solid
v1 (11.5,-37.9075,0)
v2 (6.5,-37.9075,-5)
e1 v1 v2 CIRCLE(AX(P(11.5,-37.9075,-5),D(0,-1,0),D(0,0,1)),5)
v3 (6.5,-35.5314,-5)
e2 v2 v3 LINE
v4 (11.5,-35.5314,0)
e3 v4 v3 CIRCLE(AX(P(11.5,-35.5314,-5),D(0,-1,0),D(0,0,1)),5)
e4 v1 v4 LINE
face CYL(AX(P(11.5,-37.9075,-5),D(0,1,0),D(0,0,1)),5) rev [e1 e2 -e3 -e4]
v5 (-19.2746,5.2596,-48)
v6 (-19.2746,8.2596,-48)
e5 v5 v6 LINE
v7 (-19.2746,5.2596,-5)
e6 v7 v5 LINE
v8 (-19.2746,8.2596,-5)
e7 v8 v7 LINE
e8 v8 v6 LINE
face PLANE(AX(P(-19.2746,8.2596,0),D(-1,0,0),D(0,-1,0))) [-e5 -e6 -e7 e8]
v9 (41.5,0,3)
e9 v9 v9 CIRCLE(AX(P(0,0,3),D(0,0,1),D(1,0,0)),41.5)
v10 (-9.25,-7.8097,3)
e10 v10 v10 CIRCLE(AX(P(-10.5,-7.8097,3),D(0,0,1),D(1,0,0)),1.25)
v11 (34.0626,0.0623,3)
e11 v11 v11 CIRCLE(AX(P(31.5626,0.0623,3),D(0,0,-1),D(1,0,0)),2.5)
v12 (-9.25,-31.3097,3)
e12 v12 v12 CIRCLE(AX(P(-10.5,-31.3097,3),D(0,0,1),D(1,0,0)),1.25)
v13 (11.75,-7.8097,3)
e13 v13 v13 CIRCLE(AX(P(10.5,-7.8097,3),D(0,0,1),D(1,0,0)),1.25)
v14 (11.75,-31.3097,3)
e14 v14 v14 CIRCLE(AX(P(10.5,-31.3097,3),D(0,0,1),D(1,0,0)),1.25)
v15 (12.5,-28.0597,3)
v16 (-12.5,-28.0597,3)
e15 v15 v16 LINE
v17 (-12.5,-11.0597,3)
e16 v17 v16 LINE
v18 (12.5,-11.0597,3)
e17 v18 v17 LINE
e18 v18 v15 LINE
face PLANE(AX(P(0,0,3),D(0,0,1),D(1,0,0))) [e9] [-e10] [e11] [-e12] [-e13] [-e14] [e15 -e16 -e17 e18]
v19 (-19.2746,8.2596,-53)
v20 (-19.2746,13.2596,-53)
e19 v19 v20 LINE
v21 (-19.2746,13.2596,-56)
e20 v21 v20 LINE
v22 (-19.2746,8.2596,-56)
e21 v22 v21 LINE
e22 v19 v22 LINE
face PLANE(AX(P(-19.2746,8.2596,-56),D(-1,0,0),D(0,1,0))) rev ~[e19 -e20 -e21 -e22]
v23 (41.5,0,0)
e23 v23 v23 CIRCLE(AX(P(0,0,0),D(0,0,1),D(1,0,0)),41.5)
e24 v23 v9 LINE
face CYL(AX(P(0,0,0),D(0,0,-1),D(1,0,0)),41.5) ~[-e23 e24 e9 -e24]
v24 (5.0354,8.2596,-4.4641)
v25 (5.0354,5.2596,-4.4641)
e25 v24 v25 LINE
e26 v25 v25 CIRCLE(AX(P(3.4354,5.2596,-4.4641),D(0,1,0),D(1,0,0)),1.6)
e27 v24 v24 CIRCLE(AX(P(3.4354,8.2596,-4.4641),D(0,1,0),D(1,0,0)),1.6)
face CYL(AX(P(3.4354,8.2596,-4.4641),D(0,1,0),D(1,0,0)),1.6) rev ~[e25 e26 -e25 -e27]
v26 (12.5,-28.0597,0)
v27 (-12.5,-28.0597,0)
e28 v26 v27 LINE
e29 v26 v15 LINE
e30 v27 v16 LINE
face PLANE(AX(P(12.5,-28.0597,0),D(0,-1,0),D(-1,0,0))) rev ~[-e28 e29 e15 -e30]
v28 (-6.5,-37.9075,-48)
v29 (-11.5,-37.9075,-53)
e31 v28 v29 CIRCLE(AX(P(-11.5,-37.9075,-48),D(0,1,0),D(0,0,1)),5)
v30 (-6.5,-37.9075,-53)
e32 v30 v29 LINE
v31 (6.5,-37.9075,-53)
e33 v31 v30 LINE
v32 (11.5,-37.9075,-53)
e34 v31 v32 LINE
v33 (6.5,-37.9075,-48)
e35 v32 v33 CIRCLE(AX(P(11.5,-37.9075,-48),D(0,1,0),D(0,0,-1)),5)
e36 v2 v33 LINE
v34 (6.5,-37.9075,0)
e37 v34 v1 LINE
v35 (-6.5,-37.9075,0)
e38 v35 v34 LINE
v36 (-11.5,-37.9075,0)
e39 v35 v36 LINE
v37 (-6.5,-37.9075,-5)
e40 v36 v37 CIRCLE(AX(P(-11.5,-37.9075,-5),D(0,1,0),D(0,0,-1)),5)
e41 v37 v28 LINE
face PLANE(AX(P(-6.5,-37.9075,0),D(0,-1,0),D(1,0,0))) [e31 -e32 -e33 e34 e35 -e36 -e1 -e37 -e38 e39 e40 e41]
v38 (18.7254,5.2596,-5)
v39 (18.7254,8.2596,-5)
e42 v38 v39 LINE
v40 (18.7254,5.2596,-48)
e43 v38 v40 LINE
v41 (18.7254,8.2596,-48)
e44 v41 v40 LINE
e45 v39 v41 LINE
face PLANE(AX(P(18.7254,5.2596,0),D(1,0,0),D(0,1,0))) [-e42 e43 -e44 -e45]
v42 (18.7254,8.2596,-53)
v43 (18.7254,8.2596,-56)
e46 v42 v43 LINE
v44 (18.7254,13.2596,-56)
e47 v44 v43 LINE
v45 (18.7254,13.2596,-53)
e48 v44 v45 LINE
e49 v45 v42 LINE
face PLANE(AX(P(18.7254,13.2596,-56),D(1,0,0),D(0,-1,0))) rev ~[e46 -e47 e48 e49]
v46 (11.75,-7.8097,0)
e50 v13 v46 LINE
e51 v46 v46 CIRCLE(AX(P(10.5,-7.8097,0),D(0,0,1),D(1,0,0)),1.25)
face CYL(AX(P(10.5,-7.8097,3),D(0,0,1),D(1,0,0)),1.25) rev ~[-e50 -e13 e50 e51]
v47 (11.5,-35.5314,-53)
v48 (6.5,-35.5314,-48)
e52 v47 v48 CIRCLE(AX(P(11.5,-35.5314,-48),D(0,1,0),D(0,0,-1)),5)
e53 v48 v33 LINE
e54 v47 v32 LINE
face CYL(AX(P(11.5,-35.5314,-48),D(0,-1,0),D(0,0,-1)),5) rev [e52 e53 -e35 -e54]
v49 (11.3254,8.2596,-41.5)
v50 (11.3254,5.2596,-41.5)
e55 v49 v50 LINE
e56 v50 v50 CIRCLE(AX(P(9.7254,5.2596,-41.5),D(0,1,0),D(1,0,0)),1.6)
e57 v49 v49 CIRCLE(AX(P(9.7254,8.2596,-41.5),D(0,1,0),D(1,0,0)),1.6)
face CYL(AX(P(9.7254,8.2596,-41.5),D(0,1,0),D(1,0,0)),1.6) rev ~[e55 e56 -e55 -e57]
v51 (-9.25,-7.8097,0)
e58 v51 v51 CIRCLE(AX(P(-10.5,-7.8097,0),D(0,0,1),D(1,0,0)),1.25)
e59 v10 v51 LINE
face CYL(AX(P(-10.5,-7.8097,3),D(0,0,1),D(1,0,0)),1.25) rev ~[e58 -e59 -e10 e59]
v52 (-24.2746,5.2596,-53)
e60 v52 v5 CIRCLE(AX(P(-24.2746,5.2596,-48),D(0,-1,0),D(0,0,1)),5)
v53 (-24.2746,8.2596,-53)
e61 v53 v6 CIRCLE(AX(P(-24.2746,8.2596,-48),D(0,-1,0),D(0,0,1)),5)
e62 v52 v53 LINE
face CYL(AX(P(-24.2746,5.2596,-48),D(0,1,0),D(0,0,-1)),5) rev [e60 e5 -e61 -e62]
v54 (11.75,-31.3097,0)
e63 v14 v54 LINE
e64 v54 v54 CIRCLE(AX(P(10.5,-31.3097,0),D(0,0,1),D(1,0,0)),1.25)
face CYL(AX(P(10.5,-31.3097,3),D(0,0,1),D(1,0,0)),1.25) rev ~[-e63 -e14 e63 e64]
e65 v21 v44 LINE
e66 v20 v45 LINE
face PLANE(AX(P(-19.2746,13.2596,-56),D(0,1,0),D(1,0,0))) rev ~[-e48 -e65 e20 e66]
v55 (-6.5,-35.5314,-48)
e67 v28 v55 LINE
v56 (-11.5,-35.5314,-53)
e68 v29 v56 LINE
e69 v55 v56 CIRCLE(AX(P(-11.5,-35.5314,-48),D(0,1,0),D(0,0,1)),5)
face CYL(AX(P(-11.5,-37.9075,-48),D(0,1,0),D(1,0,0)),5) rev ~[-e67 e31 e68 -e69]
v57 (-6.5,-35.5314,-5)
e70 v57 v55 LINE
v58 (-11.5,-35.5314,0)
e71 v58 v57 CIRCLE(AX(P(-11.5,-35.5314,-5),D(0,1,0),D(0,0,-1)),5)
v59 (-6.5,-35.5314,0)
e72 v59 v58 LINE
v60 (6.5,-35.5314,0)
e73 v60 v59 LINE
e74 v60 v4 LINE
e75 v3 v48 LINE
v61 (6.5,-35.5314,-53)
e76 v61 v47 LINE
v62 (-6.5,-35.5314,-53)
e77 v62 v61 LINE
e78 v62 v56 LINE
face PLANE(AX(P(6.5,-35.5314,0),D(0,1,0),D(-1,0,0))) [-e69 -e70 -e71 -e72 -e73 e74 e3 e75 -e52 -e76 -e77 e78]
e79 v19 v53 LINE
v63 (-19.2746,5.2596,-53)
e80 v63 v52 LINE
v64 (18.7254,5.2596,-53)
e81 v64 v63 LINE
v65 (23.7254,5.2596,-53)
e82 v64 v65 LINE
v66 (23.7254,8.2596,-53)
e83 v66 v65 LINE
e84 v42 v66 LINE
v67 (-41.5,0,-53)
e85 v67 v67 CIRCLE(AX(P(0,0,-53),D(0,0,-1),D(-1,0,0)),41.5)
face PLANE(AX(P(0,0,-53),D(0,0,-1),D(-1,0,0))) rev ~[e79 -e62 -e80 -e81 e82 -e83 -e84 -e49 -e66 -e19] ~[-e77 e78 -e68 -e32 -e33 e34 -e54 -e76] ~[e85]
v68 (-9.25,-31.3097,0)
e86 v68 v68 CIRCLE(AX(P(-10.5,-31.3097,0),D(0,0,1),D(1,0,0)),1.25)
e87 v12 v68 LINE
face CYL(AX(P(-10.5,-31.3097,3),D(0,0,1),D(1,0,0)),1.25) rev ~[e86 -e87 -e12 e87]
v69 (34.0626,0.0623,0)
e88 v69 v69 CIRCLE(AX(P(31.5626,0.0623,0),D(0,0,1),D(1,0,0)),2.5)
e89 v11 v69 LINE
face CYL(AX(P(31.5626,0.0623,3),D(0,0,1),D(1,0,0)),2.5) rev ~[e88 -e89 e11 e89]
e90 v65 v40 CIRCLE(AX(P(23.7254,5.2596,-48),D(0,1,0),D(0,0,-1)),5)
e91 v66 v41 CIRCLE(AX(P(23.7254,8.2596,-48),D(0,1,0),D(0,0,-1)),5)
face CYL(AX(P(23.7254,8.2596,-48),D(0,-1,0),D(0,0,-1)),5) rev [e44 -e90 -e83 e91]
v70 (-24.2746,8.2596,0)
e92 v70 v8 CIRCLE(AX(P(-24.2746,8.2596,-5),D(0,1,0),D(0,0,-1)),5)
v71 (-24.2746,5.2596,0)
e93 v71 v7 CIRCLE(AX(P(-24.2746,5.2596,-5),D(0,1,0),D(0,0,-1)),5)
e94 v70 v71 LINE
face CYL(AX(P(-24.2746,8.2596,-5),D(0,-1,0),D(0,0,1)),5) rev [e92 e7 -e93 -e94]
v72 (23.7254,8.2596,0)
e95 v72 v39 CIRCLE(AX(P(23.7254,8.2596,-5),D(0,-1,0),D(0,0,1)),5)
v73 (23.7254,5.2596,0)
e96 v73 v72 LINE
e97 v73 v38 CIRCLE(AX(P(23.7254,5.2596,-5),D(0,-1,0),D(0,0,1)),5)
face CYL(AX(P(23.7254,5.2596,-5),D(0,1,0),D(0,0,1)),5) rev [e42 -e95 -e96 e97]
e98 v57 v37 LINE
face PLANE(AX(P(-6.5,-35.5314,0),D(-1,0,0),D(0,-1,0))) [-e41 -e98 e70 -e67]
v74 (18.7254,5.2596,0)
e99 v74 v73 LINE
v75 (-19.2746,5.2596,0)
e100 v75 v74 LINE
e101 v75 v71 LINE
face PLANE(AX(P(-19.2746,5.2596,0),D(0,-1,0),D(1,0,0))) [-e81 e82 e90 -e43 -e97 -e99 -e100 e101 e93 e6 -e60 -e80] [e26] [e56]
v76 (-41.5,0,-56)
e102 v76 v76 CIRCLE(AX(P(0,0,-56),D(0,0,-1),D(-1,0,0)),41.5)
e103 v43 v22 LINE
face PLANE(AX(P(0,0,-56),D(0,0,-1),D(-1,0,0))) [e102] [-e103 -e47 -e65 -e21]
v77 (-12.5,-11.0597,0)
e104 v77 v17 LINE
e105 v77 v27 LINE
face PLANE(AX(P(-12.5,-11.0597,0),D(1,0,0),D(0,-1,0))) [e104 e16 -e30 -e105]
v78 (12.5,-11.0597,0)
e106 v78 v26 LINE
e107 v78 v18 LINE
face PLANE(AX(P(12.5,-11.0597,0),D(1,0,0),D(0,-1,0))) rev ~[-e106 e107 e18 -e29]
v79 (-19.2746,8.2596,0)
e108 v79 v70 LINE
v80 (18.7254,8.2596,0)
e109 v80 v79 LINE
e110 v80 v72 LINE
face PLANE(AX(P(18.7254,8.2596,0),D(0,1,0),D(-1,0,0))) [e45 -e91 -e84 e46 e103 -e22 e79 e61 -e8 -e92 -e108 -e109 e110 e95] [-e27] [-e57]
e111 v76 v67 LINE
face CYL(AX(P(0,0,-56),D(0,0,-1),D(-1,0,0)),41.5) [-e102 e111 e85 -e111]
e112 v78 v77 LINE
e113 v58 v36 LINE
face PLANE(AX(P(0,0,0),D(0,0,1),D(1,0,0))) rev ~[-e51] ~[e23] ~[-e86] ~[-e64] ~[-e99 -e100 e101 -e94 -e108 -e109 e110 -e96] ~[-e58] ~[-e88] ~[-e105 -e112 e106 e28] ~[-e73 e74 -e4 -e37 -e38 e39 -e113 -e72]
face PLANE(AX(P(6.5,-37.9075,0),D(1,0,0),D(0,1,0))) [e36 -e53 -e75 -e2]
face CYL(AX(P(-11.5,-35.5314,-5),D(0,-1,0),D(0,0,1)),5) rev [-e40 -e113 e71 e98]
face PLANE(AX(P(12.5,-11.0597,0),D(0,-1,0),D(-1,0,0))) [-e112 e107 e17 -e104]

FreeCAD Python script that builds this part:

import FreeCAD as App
import Part
import Sketcher
from FreeCAD import Vector
Q = App.Units.Quantity


def edges_at(feature, points):
    """Names of the edges that pass closest to the given points."""
    edges = feature.Shape.Edges
    near = lambda p: min(range(len(edges)), key=lambda i: edges[i].distToShape(Part.Vertex(*p))[0])
    return sorted({f"Edge{near(p) + 1}" for p in points})

doc = App.newDocument("Part")
body = doc.addObject("PartDesign::Body", "Body")

# Sketch on XY plane
sketch1 = body.newObject("Sketcher::SketchObject", "Sketch")
sketch1.AttachmentSupport = (doc.getObject("XY_Plane"), [""])
sketch1.MapMode = "FlatFace"
sketch1.addGeometry(Part.Circle(Vector(0, 0, 0), Vector(0, 0, 1), 42), False)
sketch1.addGeometry(Part.LineSegment(Vector(-12, -11, 0), Vector(12, -11, 0)), False)
sketch1.addGeometry(Part.LineSegment(Vector(12, -11, 0), Vector(12, -28, 0)), False)
sketch1.addGeometry(Part.LineSegment(Vector(12, -28, 0), Vector(-12, -28, 0)), False)
sketch1.addGeometry(Part.LineSegment(Vector(-12, -28, 0), Vector(-12, -11, 0)), False)
sketch1.addConstraint(Sketcher.Constraint("Coincident", 1, 2, 2, 1))
sketch1.addConstraint(Sketcher.Constraint("Coincident", 2, 2, 3, 1))
sketch1.addConstraint(Sketcher.Constraint("Coincident", 3, 2, 4, 1))
sketch1.addConstraint(Sketcher.Constraint("Coincident", 4, 2, 1, 1))
sketch1.addConstraint(Sketcher.Constraint("Horizontal", 1))
sketch1.addConstraint(Sketcher.Constraint("Vertical", 2))
sketch1.addConstraint(Sketcher.Constraint("Horizontal", 3))
sketch1.addConstraint(Sketcher.Constraint("Vertical", 4))
sketch1.addConstraint(Sketcher.Constraint("Coincident", 0, 3, -1, 1))
sketch1.addConstraint(Sketcher.Constraint("Diameter", 0, Q("83 mm")))
sketch1.addConstraint(Sketcher.Constraint("DistanceX", 1, 1, 1, 2, Q("25 mm")))
sketch1.addConstraint(Sketcher.Constraint("DistanceY", 2, 2, 2, 1, Q("17 mm")))
sketch1.addConstraint(Sketcher.Constraint("DistanceX", -1, 1, 1, 2, Q("12.5 mm")))
sketch1.addConstraint(Sketcher.Constraint("DistanceY", 1, 2, -1, 1, Q("11.0597 mm")))
pad1 = body.newObject("PartDesign::Pad", "Pad")
pad1.Profile = sketch1
pad1.Length = 3

# Sketch on XY plane
sketch2 = body.newObject("Sketcher::SketchObject", "Sketch001")
sketch2.AttachmentSupport = (doc.getObject("XY_Plane"), [""])
sketch2.MapMode = "FlatFace"
sketch2.AttachmentOffset = App.Placement(Vector(0, 0, 3), App.Rotation())
sketch2.addGeometry(Part.Circle(Vector(0.4, 15.8, 0), Vector(0, 0, 1), 1.5), False)
sketch2.addConstraint(Sketcher.Constraint("Diameter", 0, Q("3.0676 mm")))
sketch2.addConstraint(Sketcher.Constraint("DistanceX", -1, 1, 0, 3, Q("0.4132 mm")))
sketch2.addConstraint(Sketcher.Constraint("DistanceY", -1, 1, 0, 3, Q("15.7598 mm")))
pocket1 = body.newObject("PartDesign::Pocket", "Pocket")
pocket1.Profile = sketch2
pocket1.Length = 3

# Sketch on XY plane
sketch3 = body.newObject("Sketcher::SketchObject", "Sketch002")
sketch3.AttachmentSupport = (doc.getObject("XY_Plane"), [""])
sketch3.MapMode = "FlatFace"
sketch3.AttachmentOffset = App.Placement(Vector(0, 0, 3), App.Rotation())
sketch3.addGeometry(Part.Circle(Vector(31.6, 0.1, 0), Vector(0, 0, 1), 2.5), False)
sketch3.addConstraint(Sketcher.Constraint("Diameter", 0, Q("5 mm")))
sketch3.addConstraint(Sketcher.Constraint("DistanceX", -1, 1, 0, 3, Q("31.5626 mm")))
sketch3.addConstraint(Sketcher.Constraint("DistanceY", -1, 1, 0, 3, Q("0.0623 mm")))
pocket2 = body.newObject("PartDesign::Pocket", "Pocket001")
pocket2.Profile = sketch3
pocket2.Length = 3

# Sketch on XY plane
sketch4 = body.newObject("Sketcher::SketchObject", "Sketch003")
sketch4.AttachmentSupport = (doc.getObject("XY_Plane"), [""])
sketch4.MapMode = "FlatFace"
sketch4.AttachmentOffset = App.Placement(Vector(0, 0, 3), App.Rotation())
sketch4.addGeometry(Part.Circle(Vector(0.4, 15.8, 0), Vector(0, 0, 1), 1.5), False)
sketch4.addConstraint(Sketcher.Constraint("Diameter", 0, Q("3.0676 mm")))
sketch4.addConstraint(Sketcher.Constraint("DistanceX", -1, 1, 0, 3, Q("0.4132 mm")))
sketch4.addConstraint(Sketcher.Constraint("DistanceY", -1, 1, 0, 3, Q("15.7598 mm")))
pad2 = body.newObject("PartDesign::Pad", "Pad001")
pad2.Profile = sketch4
pad2.Length = 3
pad2.Reversed = True

# Sketch on XY plane
sketch5 = body.newObject("Sketcher::SketchObject", "Sketch004")
sketch5.AttachmentSupport = (doc.getObject("XY_Plane"), [""])
sketch5.MapMode = "FlatFace"
sketch5.AttachmentOffset = App.Placement(Vector(0, 0, 3), App.Rotation())
sketch5.addGeometry(Part.Circle(Vector(10.5, -7.8, 0), Vector(0, 0, 1), 1.2), False)
sketch5.addGeometry(Part.Circle(Vector(-10.5, -7.8, 0), Vector(0, 0, 1), 1.2), False)
sketch5.addGeometry(Part.Circle(Vector(-10.5, -31.3, 0), Vector(0, 0, 1), 1.2), False)
sketch5.addGeometry(Part.Circle(Vector(10.5, -31.3, 0), Vector(0, 0, 1), 1.2), False)
sketch5.addConstraint(Sketcher.Constraint("Equal", 0, 1))
sketch5.addConstraint(Sketcher.Constraint("Equal", 1, 2))
sketch5.addConstraint(Sketcher.Constraint("Equal", 2, 3))
sketch5.addConstraint(Sketcher.Constraint("Symmetric", 0, 3, 1, 3, -2))
sketch5.addConstraint(Sketcher.Constraint("Symmetric", 2, 3, 3, 3, -2))
sketch5.addConstraint(Sketcher.Constraint("Vertical", 1, 3, 2, 3))
sketch5.addConstraint(Sketcher.Constraint("Diameter", 0, Q("2.5 mm")))
sketch5.addConstraint(Sketcher.Constraint("DistanceX", 1, 3, 0, 3, Q("21 mm")))
sketch5.addConstraint(Sketcher.Constraint("DistanceY", 2, 3, 1, 3, Q("23.5 mm")))
sketch5.addConstraint(Sketcher.Constraint("DistanceY", 0, 3, -1, 1, Q("7.8097 mm")))
pocket3 = body.newObject("PartDesign::Pocket", "Pocket002")
pocket3.Profile = sketch5
pocket3.Length = 3

# Sketch on XY plane
sketch6 = body.newObject("Sketcher::SketchObject", "Sketch005")
sketch6.AttachmentSupport = (doc.getObject("XY_Plane"), [""])
sketch6.MapMode = "FlatFace"
sketch6.addGeometry(Part.LineSegment(Vector(-19.3, 8.3, 0), Vector(18.7, 8.3, 0)), False)
sketch6.addGeometry(Part.LineSegment(Vector(18.7, 8.3, 0), Vector(18.7, 5.3, 0)), False)
sketch6.addGeometry(Part.LineSegment(Vector(18.7, 5.3, 0), Vector(-19.3, 5.3, 0)), False)
sketch6.addGeometry(Part.LineSegment(Vector(-19.3, 5.3, 0), Vector(-19.3, 8.3, 0)), False)
sketch6.addConstraint(Sketcher.Constraint("Coincident", 0, 2, 1, 1))
sketch6.addConstraint(Sketcher.Constraint("Coincident", 1, 2, 2, 1))
sketch6.addConstraint(Sketcher.Constraint("Coincident", 2, 2, 3, 1))
sketch6.addConstraint(Sketcher.Constraint("Coincident", 3, 2, 0, 1))
sketch6.addConstraint(Sketcher.Constraint("Horizontal", 0))
sketch6.addConstraint(Sketcher.Constraint("Vertical", 1))
sketch6.addConstraint(Sketcher.Constraint("Horizontal", 2))
sketch6.addConstraint(Sketcher.Constraint("Vertical", 3))
sketch6.addConstraint(Sketcher.Constraint("DistanceY", 1, 2, 1, 1, Q("3 mm")))
sketch6.addConstraint(Sketcher.Constraint("DistanceX", 0, 1, 0, 2, Q("38 mm")))
sketch6.addConstraint(Sketcher.Constraint("DistanceX", -1, 1, 0, 2, Q("18.7254 mm")))
sketch6.addConstraint(Sketcher.Constraint("DistanceY", -1, 1, 0, 2, Q("8.2596 mm")))
pad3 = body.newObject("PartDesign::Pad", "Pad002")
pad3.Profile = sketch6
pad3.Length = 56
pad3.Reversed = True

# Sketch on XZ plane
sketch7 = body.newObject("Sketcher::SketchObject", "Sketch006")
sketch7.AttachmentSupport = (doc.getObject("XZ_Plane"), [""])
sketch7.MapMode = "FlatFace"
sketch7.AttachmentOffset = App.Placement(Vector(0, 0, -8.2596), App.Rotation())
sketch7.addGeometry(Part.Circle(Vector(9.7, -41.5, 0), Vector(0, 0, 1), 1.6), False)
sketch7.addGeometry(Part.Circle(Vector(3.4, -4.5, 0), Vector(0, 0, 1), 1.6), False)
sketch7.addConstraint(Sketcher.Constraint("Equal", 0, 1))
sketch7.addConstraint(Sketcher.Constraint("Diameter", 0, Q("3.2 mm")))
sketch7.addConstraint(Sketcher.Constraint("DistanceY", 0, 3, -1, 1, Q("41.5 mm")))
sketch7.addConstraint(Sketcher.Constraint("DistanceX", 1, 3, 0, 3, Q("6.29 mm")))
sketch7.addConstraint(Sketcher.Constraint("DistanceY", 1, 3, -1, 1, Q("4.464 mm")))
sketch7.addConstraint(Sketcher.Constraint("DistanceX", -1, 1, 0, 3, Q("9.7254 mm")))
pocket4 = body.newObject("PartDesign::Pocket", "Pocket003")
pocket4.Profile = sketch7
pocket4.Length = 56
pocket4.Reversed = True

# Sketch on XY plane
sketch8 = body.newObject("Sketcher::SketchObject", "Sketch007")
sketch8.AttachmentSupport = (doc.getObject("XY_Plane"), [""])
sketch8.MapMode = "FlatFace"
sketch8.AttachmentOffset = App.Placement(Vector(0, 0, -56), App.Rotation())
sketch8.addGeometry(Part.Circle(Vector(0, 0, 0), Vector(0, 0, 1), 42), False)
sketch8.addGeometry(Part.LineSegment(Vector(-19, 5, 0), Vector(19, 5, 0)), False)
sketch8.addGeometry(Part.LineSegment(Vector(19, 5, 0), Vector(19, 13, 0)), False)
sketch8.addGeometry(Part.LineSegment(Vector(19, 13, 0), Vector(-19, 13, 0)), False)
sketch8.addGeometry(Part.LineSegment(Vector(-19, 13, 0), Vector(-19, 5, 0)), False)
sketch8.addConstraint(Sketcher.Constraint("Coincident", 1, 2, 2, 1))
sketch8.addConstraint(Sketcher.Constraint("Coincident", 2, 2, 3, 1))
sketch8.addConstraint(Sketcher.Constraint("Coincident", 3, 2, 4, 1))
sketch8.addConstraint(Sketcher.Constraint("Coincident", 4, 2, 1, 1))
sketch8.addConstraint(Sketcher.Constraint("Horizontal", 1))
sketch8.addConstraint(Sketcher.Constraint("Vertical", 2))
sketch8.addConstraint(Sketcher.Constraint("Horizontal", 3))
sketch8.addConstraint(Sketcher.Constraint("Vertical", 4))
sketch8.addConstraint(Sketcher.Constraint("Coincident", 0, 3, -1, 1))
sketch8.addConstraint(Sketcher.Constraint("Diameter", 0, Q("83 mm")))
sketch8.addConstraint(Sketcher.Constraint("DistanceX", 1, 1, 1, 2, Q("38 mm")))
sketch8.addConstraint(Sketcher.Constraint("DistanceY", 2, 1, 2, 2, Q("8 mm")))
sketch8.addConstraint(Sketcher.Constraint("DistanceX", -1, 1, 1, 2, Q("18.7254 mm")))
sketch8.addConstraint(Sketcher.Constraint("DistanceY", -1, 1, 1, 2, Q("5.2596 mm")))
pad4 = body.newObject("PartDesign::Pad", "Pad003")
pad4.Profile = sketch8
pad4.Length = 3

# Sketch on XY plane
sketch9 = body.newObject("Sketcher::SketchObject", "Sketch008")
sketch9.AttachmentSupport = (doc.getObject("XY_Plane"), [""])
sketch9.MapMode = "FlatFace"
sketch9.addGeometry(Part.LineSegment(Vector(-6.5, -35.5, 0), Vector(6.5, -35.5, 0)), False)
sketch9.addGeometry(Part.LineSegment(Vector(6.5, -35.5, 0), Vector(6.5, -37.9, 0)), False)
sketch9.addGeometry(Part.LineSegment(Vector(6.5, -37.9, 0), Vector(-6.5, -37.9, 0)), False)
sketch9.addGeometry(Part.LineSegment(Vector(-6.5, -37.9, 0), Vector(-6.5, -35.5, 0)), False)
sketch9.addConstraint(Sketcher.Constraint("Coincident", 0, 2, 1, 1))
sketch9.addConstraint(Sketcher.Constraint("Coincident", 1, 2, 2, 1))
sketch9.addConstraint(Sketcher.Constraint("Coincident", 2, 2, 3, 1))
sketch9.addConstraint(Sketcher.Constraint("Coincident", 3, 2, 0, 1))
sketch9.addConstraint(Sketcher.Constraint("Horizontal", 0))
sketch9.addConstraint(Sketcher.Constraint("Vertical", 1))
sketch9.addConstraint(Sketcher.Constraint("Horizontal", 2))
sketch9.addConstraint(Sketcher.Constraint("Vertical", 3))
sketch9.addConstraint(Sketcher.Constraint("DistanceX", 0, 1, 0, 2, Q("13 mm")))
sketch9.addConstraint(Sketcher.Constraint("DistanceX", -1, 1, 0, 2, Q("6.5 mm")))
sketch9.addConstraint(Sketcher.Constraint("DistanceY", 1, 2, 1, 1, Q("2.376 mm")))
sketch9.addConstraint(Sketcher.Constraint("DistanceY", 0, 2, -1, 1, Q("35.5314 mm")))
pad5 = body.newObject("PartDesign::Pad", "Pad004")
pad5.Profile = sketch9
pad5.Length = 54.75
pad5.Reversed = True
doc.recompute()

fillet = body.newObject("PartDesign::Fillet", "Fillet")
fillet.Base = (pad5, edges_at(pad5, [
    (-19.275, 6.76, 0),
    (18.725, 6.76, 0),
    (6.5, -36.719, 0),
    (-6.5, -36.719, 0),
    (-6.5, -36.719, -53),
    (-19.275, 6.76, -53),
    (6.5, -36.719, -53),
    (18.725, 6.76, -53),
]))
fillet.Radius = 5

doc.recompute()
